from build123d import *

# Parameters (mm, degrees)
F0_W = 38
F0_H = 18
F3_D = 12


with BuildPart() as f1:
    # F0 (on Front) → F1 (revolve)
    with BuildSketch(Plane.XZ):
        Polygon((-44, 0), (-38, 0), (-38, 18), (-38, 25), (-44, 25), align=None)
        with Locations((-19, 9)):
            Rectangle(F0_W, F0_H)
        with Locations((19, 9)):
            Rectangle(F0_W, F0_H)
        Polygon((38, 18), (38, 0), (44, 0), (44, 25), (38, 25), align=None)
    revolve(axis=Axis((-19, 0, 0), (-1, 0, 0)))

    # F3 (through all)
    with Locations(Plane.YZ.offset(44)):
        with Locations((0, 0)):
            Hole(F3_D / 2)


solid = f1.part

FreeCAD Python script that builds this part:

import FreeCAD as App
import Part
import Sketcher
Q = App.Units.Quantity

doc = App.newDocument("Part")
body = doc.addObject("PartDesign::Body", "Body")

sketch1 = doc.addObject("Sketcher::SketchObject", "Sketch")
body.addObject(sketch1)
sketch1.AttachmentSupport = (doc.XZ_Plane, [""])
sketch1.MapMode = "FlatFace"
sketch1.addGeometry([
    Part.LineSegment(App.Vector(-44, 0, 0), App.Vector(44, 0, 0)),
    Part.LineSegment(App.Vector(44, 0, 0), App.Vector(44, 25, 0)),
    Part.LineSegment(App.Vector(44, 25, 0), App.Vector(38, 25, 0)),
    Part.LineSegment(App.Vector(38, 25, 0), App.Vector(38, 18, 0)),
    Part.LineSegment(App.Vector(38, 18, 0), App.Vector(-38, 18, 0)),
    Part.LineSegment(App.Vector(-38, 18, 0), App.Vector(-38, 25, 0)),
    Part.LineSegment(App.Vector(-38, 25, 0), App.Vector(-44, 25, 0)),
    Part.LineSegment(App.Vector(-44, 25, 0), App.Vector(-44, 0, 0)),
], False)
sketch1.addConstraint([
    Sketcher.Constraint("Coincident", 0, 2, 1, 1),
    Sketcher.Constraint("Coincident", 1, 2, 2, 1),
    Sketcher.Constraint("Coincident", 2, 2, 3, 1),
    Sketcher.Constraint("Coincident", 3, 2, 4, 1),
    Sketcher.Constraint("Coincident", 4, 2, 5, 1),
    Sketcher.Constraint("Coincident", 5, 2, 6, 1),
    Sketcher.Constraint("Coincident", 6, 2, 7, 1),
    Sketcher.Constraint("Coincident", 7, 2, 0, 1),
    Sketcher.Constraint("Horizontal", 0),
    Sketcher.Constraint("Vertical", 1),
    Sketcher.Constraint("Horizontal", 2),
    Sketcher.Constraint("Vertical", 3),
    Sketcher.Constraint("Horizontal", 4),
    Sketcher.Constraint("Vertical", 5),
    Sketcher.Constraint("Horizontal", 6),
    Sketcher.Constraint("Vertical", 7),
    Sketcher.Constraint("Symmetric", 0, 2, 7, 2, -1, 1),
    Sketcher.Constraint("Symmetric", 2, 2, 5, 2, -2),
    Sketcher.Constraint("DistanceX", 0, 1, 0, 2, Q("88 mm")),
    Sketcher.Constraint("DistanceX", 2, 2, 2, 1, Q("6 mm")),
    Sketcher.Constraint("DistanceY", 1, 1, 1, 2, Q("25 mm")),
    Sketcher.Constraint("DistanceY", 3, 2, 3, 1, Q("7 mm")),
])
revolution = doc.addObject("PartDesign::Revolution", "Revolution")
body.addObject(revolution)
revolution.Profile = sketch1
revolution.ReferenceAxis = (sketch1, ["H_Axis"])
revolution.Angle = 360

sketch2 = doc.addObject("Sketcher::SketchObject", "Sketch001")
body.addObject(sketch2)
sketch2.AttachmentSupport = (doc.YZ_Plane, [""])
sketch2.MapMode = "FlatFace"
sketch2.AttachmentOffset = App.Placement(App.Vector(0, 0, 44), App.Rotation())
sketch2.addGeometry(Part.Circle(App.Vector(0, 0, 0), App.Vector(0, 0, 1), 6), False)
sketch2.addConstraint([
    Sketcher.Constraint("Coincident", 0, 3, -1, 1),
    Sketcher.Constraint("Diameter", 0, Q("12 mm")),
])
doc.recompute()
hole = doc.addObject("PartDesign::Hole", "Hole")
body.addObject(hole)
hole.Profile = sketch2
hole.ThreadType = "None"
hole.Diameter = 12
hole.DepthType = "ThroughAll"

doc.recompute()
